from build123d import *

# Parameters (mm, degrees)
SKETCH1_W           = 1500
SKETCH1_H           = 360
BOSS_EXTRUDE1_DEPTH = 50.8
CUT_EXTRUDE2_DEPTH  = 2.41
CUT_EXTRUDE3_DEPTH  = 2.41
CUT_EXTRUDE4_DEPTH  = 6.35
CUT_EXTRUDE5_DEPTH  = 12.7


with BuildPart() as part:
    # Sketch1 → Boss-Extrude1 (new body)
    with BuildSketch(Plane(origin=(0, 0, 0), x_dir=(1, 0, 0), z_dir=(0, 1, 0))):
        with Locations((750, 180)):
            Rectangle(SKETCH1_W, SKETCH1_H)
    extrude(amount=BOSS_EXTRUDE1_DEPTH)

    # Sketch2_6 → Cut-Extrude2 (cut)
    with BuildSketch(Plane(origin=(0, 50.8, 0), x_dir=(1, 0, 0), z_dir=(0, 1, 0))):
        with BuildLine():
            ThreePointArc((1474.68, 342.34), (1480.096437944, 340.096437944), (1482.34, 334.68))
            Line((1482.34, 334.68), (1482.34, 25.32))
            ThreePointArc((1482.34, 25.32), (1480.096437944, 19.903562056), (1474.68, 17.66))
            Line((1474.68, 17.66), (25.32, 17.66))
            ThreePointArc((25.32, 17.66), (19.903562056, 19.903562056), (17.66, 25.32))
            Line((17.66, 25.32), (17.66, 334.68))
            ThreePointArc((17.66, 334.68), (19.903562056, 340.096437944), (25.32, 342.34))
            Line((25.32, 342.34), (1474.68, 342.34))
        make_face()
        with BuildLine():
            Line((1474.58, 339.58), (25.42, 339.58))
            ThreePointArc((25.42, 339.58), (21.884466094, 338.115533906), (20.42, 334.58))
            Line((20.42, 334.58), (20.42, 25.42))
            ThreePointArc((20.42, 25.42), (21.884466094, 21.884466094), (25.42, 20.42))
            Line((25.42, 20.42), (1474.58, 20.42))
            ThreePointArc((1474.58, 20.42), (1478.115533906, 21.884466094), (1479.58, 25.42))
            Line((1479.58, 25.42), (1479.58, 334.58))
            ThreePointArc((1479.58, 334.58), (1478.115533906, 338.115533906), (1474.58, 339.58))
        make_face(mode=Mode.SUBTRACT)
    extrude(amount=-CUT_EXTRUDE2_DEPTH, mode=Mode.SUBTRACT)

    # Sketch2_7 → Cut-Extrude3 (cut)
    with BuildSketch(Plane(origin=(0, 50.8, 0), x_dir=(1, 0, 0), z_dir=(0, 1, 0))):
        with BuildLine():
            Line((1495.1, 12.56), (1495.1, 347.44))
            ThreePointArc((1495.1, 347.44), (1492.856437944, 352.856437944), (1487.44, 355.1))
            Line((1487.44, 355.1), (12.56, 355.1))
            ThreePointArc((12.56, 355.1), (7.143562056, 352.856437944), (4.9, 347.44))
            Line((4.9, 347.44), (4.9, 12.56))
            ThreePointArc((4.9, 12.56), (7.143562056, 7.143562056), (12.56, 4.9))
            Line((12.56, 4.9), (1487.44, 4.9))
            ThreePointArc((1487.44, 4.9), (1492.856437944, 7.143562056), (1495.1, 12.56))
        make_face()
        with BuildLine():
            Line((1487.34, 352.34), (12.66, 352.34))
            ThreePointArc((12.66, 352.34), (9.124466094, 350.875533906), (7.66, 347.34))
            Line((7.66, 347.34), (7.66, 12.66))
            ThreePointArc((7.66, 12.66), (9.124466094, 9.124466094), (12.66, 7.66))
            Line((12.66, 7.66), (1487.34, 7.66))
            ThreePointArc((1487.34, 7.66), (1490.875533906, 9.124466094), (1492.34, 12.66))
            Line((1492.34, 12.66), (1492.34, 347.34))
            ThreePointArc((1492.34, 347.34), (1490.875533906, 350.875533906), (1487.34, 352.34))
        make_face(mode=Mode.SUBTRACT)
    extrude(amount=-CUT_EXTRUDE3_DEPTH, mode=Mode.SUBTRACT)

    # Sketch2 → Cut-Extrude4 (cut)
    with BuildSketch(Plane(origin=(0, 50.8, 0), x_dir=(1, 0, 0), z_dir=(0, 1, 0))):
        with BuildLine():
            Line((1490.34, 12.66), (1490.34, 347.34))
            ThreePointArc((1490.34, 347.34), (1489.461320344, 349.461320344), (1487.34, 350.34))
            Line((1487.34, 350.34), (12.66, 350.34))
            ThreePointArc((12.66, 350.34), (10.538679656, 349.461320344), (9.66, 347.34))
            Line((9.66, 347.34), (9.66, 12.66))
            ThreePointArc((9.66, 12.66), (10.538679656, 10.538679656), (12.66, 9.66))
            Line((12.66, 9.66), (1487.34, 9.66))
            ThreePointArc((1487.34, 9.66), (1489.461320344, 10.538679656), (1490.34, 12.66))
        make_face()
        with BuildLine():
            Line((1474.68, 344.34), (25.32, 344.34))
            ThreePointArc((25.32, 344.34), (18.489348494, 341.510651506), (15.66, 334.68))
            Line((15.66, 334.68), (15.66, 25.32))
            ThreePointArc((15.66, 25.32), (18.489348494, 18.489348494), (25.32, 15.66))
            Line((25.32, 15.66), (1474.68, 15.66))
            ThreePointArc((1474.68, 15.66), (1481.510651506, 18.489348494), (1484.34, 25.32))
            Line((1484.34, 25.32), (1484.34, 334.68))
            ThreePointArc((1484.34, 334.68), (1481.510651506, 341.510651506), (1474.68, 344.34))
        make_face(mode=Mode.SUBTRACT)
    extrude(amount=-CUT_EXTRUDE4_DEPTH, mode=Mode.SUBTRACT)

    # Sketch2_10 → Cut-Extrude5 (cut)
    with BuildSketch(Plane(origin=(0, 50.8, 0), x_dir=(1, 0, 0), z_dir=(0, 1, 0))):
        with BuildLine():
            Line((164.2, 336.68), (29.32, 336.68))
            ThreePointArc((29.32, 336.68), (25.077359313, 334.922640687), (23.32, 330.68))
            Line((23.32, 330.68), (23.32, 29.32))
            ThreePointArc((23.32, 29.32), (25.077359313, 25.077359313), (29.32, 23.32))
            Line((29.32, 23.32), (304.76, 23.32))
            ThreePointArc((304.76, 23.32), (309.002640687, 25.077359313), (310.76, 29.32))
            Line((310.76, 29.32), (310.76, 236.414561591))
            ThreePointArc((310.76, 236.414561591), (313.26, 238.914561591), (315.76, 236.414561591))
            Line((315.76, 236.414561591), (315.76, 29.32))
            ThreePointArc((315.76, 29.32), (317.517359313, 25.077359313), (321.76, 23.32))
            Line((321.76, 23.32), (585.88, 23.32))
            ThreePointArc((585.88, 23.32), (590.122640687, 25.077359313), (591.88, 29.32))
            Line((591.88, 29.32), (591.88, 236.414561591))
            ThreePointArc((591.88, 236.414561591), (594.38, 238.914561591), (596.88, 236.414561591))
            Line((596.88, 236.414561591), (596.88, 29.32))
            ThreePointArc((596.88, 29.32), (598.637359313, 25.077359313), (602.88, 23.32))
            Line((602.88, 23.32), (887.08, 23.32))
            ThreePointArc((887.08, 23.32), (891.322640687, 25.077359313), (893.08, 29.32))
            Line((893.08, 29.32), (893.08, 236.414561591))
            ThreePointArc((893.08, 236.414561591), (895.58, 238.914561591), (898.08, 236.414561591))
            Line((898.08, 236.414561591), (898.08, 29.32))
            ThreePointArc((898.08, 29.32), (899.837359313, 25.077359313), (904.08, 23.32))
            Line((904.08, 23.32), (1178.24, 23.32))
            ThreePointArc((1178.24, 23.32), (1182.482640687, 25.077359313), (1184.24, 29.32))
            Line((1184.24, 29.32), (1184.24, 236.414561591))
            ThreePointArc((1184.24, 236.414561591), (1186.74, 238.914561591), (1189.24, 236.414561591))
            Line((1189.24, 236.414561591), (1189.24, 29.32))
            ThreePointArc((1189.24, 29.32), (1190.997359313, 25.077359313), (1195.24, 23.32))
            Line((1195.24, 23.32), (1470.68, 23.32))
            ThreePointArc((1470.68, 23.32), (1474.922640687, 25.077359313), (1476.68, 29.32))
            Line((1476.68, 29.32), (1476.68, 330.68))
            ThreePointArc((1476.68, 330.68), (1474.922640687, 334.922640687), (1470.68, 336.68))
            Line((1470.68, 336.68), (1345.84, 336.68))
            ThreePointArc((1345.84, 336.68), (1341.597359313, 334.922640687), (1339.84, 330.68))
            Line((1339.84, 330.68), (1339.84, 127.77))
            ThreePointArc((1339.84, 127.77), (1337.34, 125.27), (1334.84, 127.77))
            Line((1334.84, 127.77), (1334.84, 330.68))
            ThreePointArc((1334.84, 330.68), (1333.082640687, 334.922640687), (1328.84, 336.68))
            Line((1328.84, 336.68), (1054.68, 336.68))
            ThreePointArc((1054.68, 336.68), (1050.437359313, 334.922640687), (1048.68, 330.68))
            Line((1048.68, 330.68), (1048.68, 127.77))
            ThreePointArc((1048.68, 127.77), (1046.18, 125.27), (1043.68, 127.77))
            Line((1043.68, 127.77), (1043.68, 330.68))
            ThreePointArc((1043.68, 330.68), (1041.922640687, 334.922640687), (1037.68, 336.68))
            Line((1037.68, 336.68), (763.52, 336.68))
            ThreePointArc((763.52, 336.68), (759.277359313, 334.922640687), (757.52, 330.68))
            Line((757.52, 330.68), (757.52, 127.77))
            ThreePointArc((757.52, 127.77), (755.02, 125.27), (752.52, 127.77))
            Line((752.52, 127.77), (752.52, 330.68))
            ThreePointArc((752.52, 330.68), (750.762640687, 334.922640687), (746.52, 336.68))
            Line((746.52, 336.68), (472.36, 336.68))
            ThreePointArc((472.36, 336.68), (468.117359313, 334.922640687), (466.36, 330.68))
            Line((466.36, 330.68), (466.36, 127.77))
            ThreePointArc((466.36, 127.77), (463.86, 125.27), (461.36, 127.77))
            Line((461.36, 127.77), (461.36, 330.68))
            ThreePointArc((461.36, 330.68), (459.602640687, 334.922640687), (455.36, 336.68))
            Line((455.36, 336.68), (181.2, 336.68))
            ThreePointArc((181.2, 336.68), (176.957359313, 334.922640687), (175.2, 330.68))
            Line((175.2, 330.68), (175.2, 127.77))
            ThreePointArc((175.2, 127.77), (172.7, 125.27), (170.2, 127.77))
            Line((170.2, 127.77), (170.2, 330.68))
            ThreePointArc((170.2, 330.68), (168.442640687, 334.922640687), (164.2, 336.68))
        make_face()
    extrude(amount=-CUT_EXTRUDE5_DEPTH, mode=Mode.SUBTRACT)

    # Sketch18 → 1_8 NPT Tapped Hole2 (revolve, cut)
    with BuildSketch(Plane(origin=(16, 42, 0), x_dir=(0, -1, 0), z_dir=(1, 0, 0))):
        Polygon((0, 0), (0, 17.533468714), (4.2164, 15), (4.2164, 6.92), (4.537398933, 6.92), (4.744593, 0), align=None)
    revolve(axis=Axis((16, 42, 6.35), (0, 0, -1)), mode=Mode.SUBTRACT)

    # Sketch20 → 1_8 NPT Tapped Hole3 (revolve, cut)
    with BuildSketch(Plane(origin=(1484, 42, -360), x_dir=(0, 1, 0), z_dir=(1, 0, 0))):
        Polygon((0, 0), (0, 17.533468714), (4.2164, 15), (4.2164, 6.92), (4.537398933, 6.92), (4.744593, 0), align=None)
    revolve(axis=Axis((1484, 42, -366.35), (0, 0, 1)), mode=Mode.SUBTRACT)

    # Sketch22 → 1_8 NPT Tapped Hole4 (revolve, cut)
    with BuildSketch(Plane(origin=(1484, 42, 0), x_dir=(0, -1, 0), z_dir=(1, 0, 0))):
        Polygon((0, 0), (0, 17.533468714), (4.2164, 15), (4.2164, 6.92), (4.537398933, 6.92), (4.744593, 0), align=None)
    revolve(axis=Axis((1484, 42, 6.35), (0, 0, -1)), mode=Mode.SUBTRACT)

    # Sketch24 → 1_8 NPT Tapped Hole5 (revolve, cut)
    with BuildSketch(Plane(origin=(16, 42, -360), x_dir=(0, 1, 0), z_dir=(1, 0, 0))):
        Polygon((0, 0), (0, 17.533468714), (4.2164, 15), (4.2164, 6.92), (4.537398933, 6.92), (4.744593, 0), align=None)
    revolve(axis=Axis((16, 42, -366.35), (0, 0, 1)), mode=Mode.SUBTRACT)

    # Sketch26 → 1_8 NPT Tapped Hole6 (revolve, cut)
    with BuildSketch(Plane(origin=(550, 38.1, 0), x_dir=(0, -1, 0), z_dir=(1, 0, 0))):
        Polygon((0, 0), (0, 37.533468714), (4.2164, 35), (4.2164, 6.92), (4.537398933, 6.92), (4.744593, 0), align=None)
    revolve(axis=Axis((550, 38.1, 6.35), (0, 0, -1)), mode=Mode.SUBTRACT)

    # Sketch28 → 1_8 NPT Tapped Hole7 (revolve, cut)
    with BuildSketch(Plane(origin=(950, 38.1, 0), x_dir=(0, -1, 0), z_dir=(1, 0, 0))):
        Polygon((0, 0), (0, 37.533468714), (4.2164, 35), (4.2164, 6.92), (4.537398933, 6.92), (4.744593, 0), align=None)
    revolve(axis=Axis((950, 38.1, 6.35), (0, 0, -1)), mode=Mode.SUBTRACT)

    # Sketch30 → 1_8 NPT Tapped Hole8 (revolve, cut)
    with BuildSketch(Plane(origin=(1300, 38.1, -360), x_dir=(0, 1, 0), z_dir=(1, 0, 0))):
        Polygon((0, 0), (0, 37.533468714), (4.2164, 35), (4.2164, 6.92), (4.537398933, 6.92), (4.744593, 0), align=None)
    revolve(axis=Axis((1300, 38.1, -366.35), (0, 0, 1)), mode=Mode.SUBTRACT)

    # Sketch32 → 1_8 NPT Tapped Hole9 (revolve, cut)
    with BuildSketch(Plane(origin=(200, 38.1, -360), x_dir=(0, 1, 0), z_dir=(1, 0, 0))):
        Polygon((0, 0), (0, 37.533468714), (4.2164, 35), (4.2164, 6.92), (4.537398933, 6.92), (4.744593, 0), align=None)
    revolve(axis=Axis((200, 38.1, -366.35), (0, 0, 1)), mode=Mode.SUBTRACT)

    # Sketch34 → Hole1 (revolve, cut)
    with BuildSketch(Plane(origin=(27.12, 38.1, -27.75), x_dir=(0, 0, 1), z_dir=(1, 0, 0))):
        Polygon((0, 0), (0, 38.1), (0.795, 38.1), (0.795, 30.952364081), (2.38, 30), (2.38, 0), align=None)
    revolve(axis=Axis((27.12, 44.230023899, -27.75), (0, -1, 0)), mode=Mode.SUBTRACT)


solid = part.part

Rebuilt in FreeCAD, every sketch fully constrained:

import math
import FreeCAD as App
import Part
import Sketcher
Q = App.Units.Quantity


def add_polygon(sketch, points):
    """Adds a closed chain of lines whose ends are joined by coincident constraints."""
    first, n = sketch.GeometryCount, len(points)
    for a, b in zip(points, points[1:] + points[:1]):
        sketch.addGeometry(Part.LineSegment(App.Vector(*a, 0), App.Vector(*b, 0)), False)
    for i in range(n):
        sketch.addConstraint(Sketcher.Constraint("Coincident", first + i, 2, first + (i + 1) % n, 1))

doc = App.newDocument("Part")
body = doc.addObject("PartDesign::Body", "Body")

# Sketch on XZ plane
sketch1 = body.newObject("Sketcher::SketchObject", "Sketch")
sketch1.AttachmentSupport = (doc.getObject("XZ_Plane"), [""])
sketch1.MapMode = "FlatFace"
add_polygon(sketch1, [(0, -360), (0, 0), (1500, 0), (1500, -360)])  # lines 0-3
sketch1.addConstraint([
    Sketcher.Constraint("Vertical", 0),
    Sketcher.Constraint("Horizontal", 1),
    Sketcher.Constraint("Vertical", 2),
    Sketcher.Constraint("Horizontal", 3),
    Sketcher.Constraint("Coincident", 0, 2, -1, 1),
    Sketcher.Constraint("DistanceX", 1, 1, 1, 2, Q("1500 mm")),
    Sketcher.Constraint("DistanceY", 0, 1, 0, 2, Q("360 mm")),
])
pad1 = body.newObject("PartDesign::Pad", "Pad")
pad1.Profile = sketch1
pad1.Length = 50.8
pad1.Reversed = True

# Sketch on XZ plane
sketch2 = body.newObject("Sketcher::SketchObject", "Sketch001")
sketch2.AttachmentSupport = (doc.getObject("XZ_Plane"), [""])
sketch2.MapMode = "FlatFace"
sketch2.AttachmentOffset = App.Placement(App.Vector(0, 0, -50.8), App.Rotation())
sketch2.addGeometry([
    Part.ArcOfCircle(Part.Circle(App.Vector(1475, -335, 0), App.Vector(0, 0, 1), 8), math.radians(-90), math.radians(0)),  # 0
    Part.LineSegment(App.Vector(1475, -342, 0), App.Vector(25, -342, 0)),  # 1
    Part.ArcOfCircle(Part.Circle(App.Vector(25, -335, 0), App.Vector(0, 0, 1), 8), math.radians(180), math.radians(270)),  # 2
    Part.LineSegment(App.Vector(18, -335, 0), App.Vector(18, -25, 0)),  # 3
    Part.ArcOfCircle(Part.Circle(App.Vector(25, -25, 0), App.Vector(0, 0, 1), 8), math.radians(90), math.radians(180)),  # 4
    Part.LineSegment(App.Vector(25, -18, 0), App.Vector(1475, -18, 0)),  # 5
    Part.ArcOfCircle(Part.Circle(App.Vector(1475, -25, 0), App.Vector(0, 0, 1), 8), math.radians(0), math.radians(90)),  # 6
    Part.LineSegment(App.Vector(1482, -25, 0), App.Vector(1482, -335, 0)),  # 7
    Part.ArcOfCircle(Part.Circle(App.Vector(1475, -335, 0), App.Vector(0, 0, 1), 5), math.radians(-90), math.radians(0)),  # 8
    Part.LineSegment(App.Vector(1480, -335, 0), App.Vector(1480, -25, 0)),  # 9
    Part.ArcOfCircle(Part.Circle(App.Vector(1475, -25, 0), App.Vector(0, 0, 1), 5), math.radians(0), math.radians(90)),  # 10
    Part.LineSegment(App.Vector(1475, -20, 0), App.Vector(25, -20, 0)),  # 11
    Part.ArcOfCircle(Part.Circle(App.Vector(25, -25, 0), App.Vector(0, 0, 1), 5), math.radians(90), math.radians(180)),  # 12
    Part.LineSegment(App.Vector(20, -25, 0), App.Vector(20, -335, 0)),  # 13
    Part.ArcOfCircle(Part.Circle(App.Vector(25, -335, 0), App.Vector(0, 0, 1), 5), math.radians(180), math.radians(270)),  # 14
    Part.LineSegment(App.Vector(25, -340, 0), App.Vector(1475, -340, 0)),  # 15
], False)
sketch2.addConstraint([
    Sketcher.Constraint("Tangent", 0, 1, 1, 1),
    Sketcher.Constraint("Tangent", 1, 2, 2, 2),
    Sketcher.Constraint("Tangent", 2, 1, 3, 1),
    Sketcher.Constraint("Tangent", 3, 2, 4, 2),
    Sketcher.Constraint("Tangent", 4, 1, 5, 1),
    Sketcher.Constraint("Tangent", 5, 2, 6, 2),
    Sketcher.Constraint("Tangent", 6, 1, 7, 1),
    Sketcher.Constraint("Tangent", 7, 2, 0, 2),
    Sketcher.Constraint("Tangent", 8, 2, 9, 1),
    Sketcher.Constraint("Tangent", 9, 2, 10, 1),
    Sketcher.Constraint("Tangent", 10, 2, 11, 1),
    Sketcher.Constraint("Tangent", 11, 2, 12, 1),
    Sketcher.Constraint("Tangent", 12, 2, 13, 1),
    Sketcher.Constraint("Tangent", 13, 2, 14, 1),
    Sketcher.Constraint("Tangent", 14, 2, 15, 1),
    Sketcher.Constraint("Tangent", 15, 2, 8, 1),
    Sketcher.Constraint("Horizontal", 1),
    Sketcher.Constraint("Vertical", 3),
    Sketcher.Constraint("Horizontal", 5),
    Sketcher.Constraint("Vertical", 7),
    Sketcher.Constraint("Vertical", 9),
    Sketcher.Constraint("Horizontal", 11),
    Sketcher.Constraint("Vertical", 13),
    Sketcher.Constraint("Horizontal", 15),
    Sketcher.Constraint("Equal", 0, 2),
    Sketcher.Constraint("Equal", 2, 4),
    Sketcher.Constraint("Equal", 4, 6),
    Sketcher.Constraint("Equal", 8, 10),
    Sketcher.Constraint("Equal", 10, 12),
    Sketcher.Constraint("Equal", 12, 14),
    Sketcher.Constraint("Radius", 8, Q("5 mm")),
    Sketcher.Constraint("Radius", 0, Q("7.66 mm")),
    Sketcher.Constraint("DistanceX", 1, 2, 1, 1, Q("1449.36 mm")),
    Sketcher.Constraint("DistanceX", 11, 2, 11, 1, Q("1449.16 mm")),
    Sketcher.Constraint("DistanceY", 3, 1, 3, 2, Q("309.36 mm")),
    Sketcher.Constraint("DistanceY", 9, 1, 9, 2, Q("309.16 mm")),
    Sketcher.Constraint("DistanceX", 8, 3, 0, 3, Q("0.1 mm")),
    Sketcher.Constraint("DistanceY", 0, 3, 8, 3, Q("0.1 mm")),
    Sketcher.Constraint("DistanceX", -1, 1, 0, 3, Q("1474.68 mm")),
    Sketcher.Constraint("DistanceY", 0, 3, -1, 1, Q("334.68 mm")),
])
pocket1 = body.newObject("PartDesign::Pocket", "Pocket")
pocket1.Profile = sketch2
pocket1.Length = 2.41
pocket1.Reversed = True

# Sketch on XZ plane
sketch3 = body.newObject("Sketcher::SketchObject", "Sketch002")
sketch3.AttachmentSupport = (doc.getObject("XZ_Plane"), [""])
sketch3.MapMode = "FlatFace"
sketch3.AttachmentOffset = App.Placement(App.Vector(0, 0, -50.8), App.Rotation())
sketch3.addGeometry([
    Part.LineSegment(App.Vector(1495, -13, 0), App.Vector(1495, -347, 0)),  # 0
    Part.ArcOfCircle(Part.Circle(App.Vector(1487, -347, 0), App.Vector(0, 0, 1), 8), math.radians(-90), math.radians(0)),  # 1
    Part.LineSegment(App.Vector(1487, -355, 0), App.Vector(13, -355, 0)),  # 2
    Part.ArcOfCircle(Part.Circle(App.Vector(13, -347, 0), App.Vector(0, 0, 1), 8), math.radians(180), math.radians(270)),  # 3
    Part.LineSegment(App.Vector(5, -347, 0), App.Vector(5, -13, 0)),  # 4
    Part.ArcOfCircle(Part.Circle(App.Vector(13, -13, 0), App.Vector(0, 0, 1), 8), math.radians(90), math.radians(180)),  # 5
    Part.LineSegment(App.Vector(13, -5, 0), App.Vector(1487, -5, 0)),  # 6
    Part.ArcOfCircle(Part.Circle(App.Vector(1487, -13, 0), App.Vector(0, 0, 1), 8), math.radians(0), math.radians(90)),  # 7
    Part.LineSegment(App.Vector(13, -352, 0), App.Vector(1487, -352, 0)),  # 8
    Part.ArcOfCircle(Part.Circle(App.Vector(1487, -347, 0), App.Vector(0, 0, 1), 5), math.radians(-90), math.radians(0)),  # 9
    Part.LineSegment(App.Vector(1492, -347, 0), App.Vector(1492, -13, 0)),  # 10
    Part.ArcOfCircle(Part.Circle(App.Vector(1487, -13, 0), App.Vector(0, 0, 1), 5), math.radians(0), math.radians(90)),  # 11
    Part.LineSegment(App.Vector(1487, -8, 0), App.Vector(13, -8, 0)),  # 12
    Part.ArcOfCircle(Part.Circle(App.Vector(13, -13, 0), App.Vector(0, 0, 1), 5), math.radians(90), math.radians(180)),  # 13
    Part.LineSegment(App.Vector(8, -13, 0), App.Vector(8, -347, 0)),  # 14
    Part.ArcOfCircle(Part.Circle(App.Vector(13, -347, 0), App.Vector(0, 0, 1), 5), math.radians(180), math.radians(270)),  # 15
], False)
sketch3.addConstraint([
    Sketcher.Constraint("Tangent", 0, 2, 1, 2),
    Sketcher.Constraint("Tangent", 1, 1, 2, 1),
    Sketcher.Constraint("Tangent", 2, 2, 3, 2),
    Sketcher.Constraint("Tangent", 3, 1, 4, 1),
    Sketcher.Constraint("Tangent", 4, 2, 5, 2),
    Sketcher.Constraint("Tangent", 5, 1, 6, 1),
    Sketcher.Constraint("Tangent", 6, 2, 7, 2),
    Sketcher.Constraint("Tangent", 7, 1, 0, 1),
    Sketcher.Constraint("Tangent", 8, 2, 9, 1),
    Sketcher.Constraint("Tangent", 9, 2, 10, 1),
    Sketcher.Constraint("Tangent", 10, 2, 11, 1),
    Sketcher.Constraint("Tangent", 11, 2, 12, 1),
    Sketcher.Constraint("Tangent", 12, 2, 13, 1),
    Sketcher.Constraint("Tangent", 13, 2, 14, 1),
    Sketcher.Constraint("Tangent", 14, 2, 15, 1),
    Sketcher.Constraint("Tangent", 15, 2, 8, 1),
    Sketcher.Constraint("Vertical", 0),
    Sketcher.Constraint("Horizontal", 2),
    Sketcher.Constraint("Vertical", 4),
    Sketcher.Constraint("Horizontal", 6),
    Sketcher.Constraint("Horizontal", 8),
    Sketcher.Constraint("Vertical", 10),
    Sketcher.Constraint("Horizontal", 12),
    Sketcher.Constraint("Vertical", 14),
    Sketcher.Constraint("Equal", 1, 3),
    Sketcher.Constraint("Equal", 3, 5),
    Sketcher.Constraint("Equal", 5, 7),
    Sketcher.Constraint("Equal", 9, 11),
    Sketcher.Constraint("Equal", 11, 13),
    Sketcher.Constraint("Equal", 13, 15),
    Sketcher.Constraint("Radius", 9, Q("5 mm")),
    Sketcher.Constraint("Radius", 1, Q("7.66 mm")),
    Sketcher.Constraint("DistanceX", 2, 2, 2, 1, Q("1474.88 mm")),
    Sketcher.Constraint("DistanceX", 8, 1, 8, 2, Q("1474.68 mm")),
    Sketcher.Constraint("DistanceY", 0, 2, 0, 1, Q("334.88 mm")),
    Sketcher.Constraint("DistanceY", 10, 1, 10, 2, Q("334.68 mm")),
    Sketcher.Constraint("DistanceX", -1, 1, 0, 2, Q("1495.1 mm")),
    Sketcher.Constraint("DistanceY", 1, 1, -1, 1, Q("355.1 mm")),
    Sketcher.Constraint("DistanceX", 9, 3, 1, 3, Q("0.1 mm")),
    Sketcher.Constraint("DistanceY", 1, 3, 9, 3, Q("0.1 mm")),
])
pocket2 = body.newObject("PartDesign::Pocket", "Pocket001")
pocket2.Profile = sketch3
pocket2.Length = 2.41
pocket2.Reversed = True

# Sketch on XZ plane
sketch4 = body.newObject("Sketcher::SketchObject", "Sketch003")
sketch4.AttachmentSupport = (doc.getObject("XZ_Plane"), [""])
sketch4.MapMode = "FlatFace"
sketch4.AttachmentOffset = App.Placement(App.Vector(0, 0, -50.8), App.Rotation())
sketch4.addGeometry([
    Part.LineSegment(App.Vector(1490.3, -12.7, 0), App.Vector(1490.3, -347.3, 0)),  # 0
    Part.ArcOfCircle(Part.Circle(App.Vector(1487.3, -347.3, 0), App.Vector(0, 0, 1), 3), math.radians(-90), math.radians(0)),  # 1
    Part.LineSegment(App.Vector(1487.3, -350.3, 0), App.Vector(12.7, -350.3, 0)),  # 2
    Part.ArcOfCircle(Part.Circle(App.Vector(12.7, -347.3, 0), App.Vector(0, 0, 1), 3), math.radians(180), math.radians(270)),  # 3
    Part.LineSegment(App.Vector(9.7, -347.3, 0), App.Vector(9.7, -12.7, 0)),  # 4
    Part.ArcOfCircle(Part.Circle(App.Vector(12.7, -12.7, 0), App.Vector(0, 0, 1), 3), math.radians(90), math.radians(180)),  # 5
    Part.LineSegment(App.Vector(12.7, -9.7, 0), App.Vector(1487.3, -9.7, 0)),  # 6
    Part.ArcOfCircle(Part.Circle(App.Vector(1487.3, -12.7, 0), App.Vector(0, 0, 1), 3), math.radians(0), math.radians(90)),  # 7
    Part.LineSegment(App.Vector(25.3, -344.3, 0), App.Vector(1474.7, -344.3, 0)),  # 8
    Part.ArcOfCircle(Part.Circle(App.Vector(1474.7, -334.7, 0), App.Vector(0, 0, 1), 9.7), math.radians(-90), math.radians(0)),  # 9
    Part.LineSegment(App.Vector(1484.3, -334.7, 0), App.Vector(1484.3, -25.3, 0)),  # 10
    Part.ArcOfCircle(Part.Circle(App.Vector(1474.7, -25.3, 0), App.Vector(0, 0, 1), 9.7), math.radians(0), math.radians(90)),  # 11
    Part.LineSegment(App.Vector(1474.7, -15.7, 0), App.Vector(25.3, -15.7, 0)),  # 12
    Part.ArcOfCircle(Part.Circle(App.Vector(25.3, -25.3, 0), App.Vector(0, 0, 1), 9.7), math.radians(90), math.radians(180)),  # 13
    Part.LineSegment(App.Vector(15.7, -25.3, 0), App.Vector(15.7, -334.7, 0)),  # 14
    Part.ArcOfCircle(Part.Circle(App.Vector(25.3, -334.7, 0), App.Vector(0, 0, 1), 9.7), math.radians(-180), math.radians(-90)),  # 15
], False)
sketch4.addConstraint([
    Sketcher.Constraint("Tangent", 0, 2, 1, 2),
    Sketcher.Constraint("Tangent", 1, 1, 2, 1),
    Sketcher.Constraint("Tangent", 2, 2, 3, 2),
    Sketcher.Constraint("Tangent", 3, 1, 4, 1),
    Sketcher.Constraint("Tangent", 4, 2, 5, 2),
    Sketcher.Constraint("Tangent", 5, 1, 6, 1),
    Sketcher.Constraint("Tangent", 6, 2, 7, 2),
    Sketcher.Constraint("Tangent", 7, 1, 0, 1),
    Sketcher.Constraint("Tangent", 8, 2, 9, 1),
    Sketcher.Constraint("Tangent", 9, 2, 10, 1),
    Sketcher.Constraint("Tangent", 10, 2, 11, 1),
    Sketcher.Constraint("Tangent", 11, 2, 12, 1),
    Sketcher.Constraint("Tangent", 12, 2, 13, 1),
    Sketcher.Constraint("Tangent", 13, 2, 14, 1),
    Sketcher.Constraint("Tangent", 14, 2, 15, 1),
    Sketcher.Constraint("Tangent", 15, 2, 8, 1),
    Sketcher.Constraint("Vertical", 0),
    Sketcher.Constraint("Horizontal", 2),
    Sketcher.Constraint("Vertical", 4),
    Sketcher.Constraint("Horizontal", 6),
    Sketcher.Constraint("Horizontal", 8),
    Sketcher.Constraint("Vertical", 10),
    Sketcher.Constraint("Horizontal", 12),
    Sketcher.Constraint("Vertical", 14),
    Sketcher.Constraint("Equal", 1, 3),
    Sketcher.Constraint("Equal", 3, 5),
    Sketcher.Constraint("Equal", 5, 7),
    Sketcher.Constraint("Equal", 9, 11),
    Sketcher.Constraint("Equal", 11, 13),
    Sketcher.Constraint("Equal", 13, 15),
    Sketcher.Constraint("Radius", 1, Q("3 mm")),
    Sketcher.Constraint("Radius", 9, Q("9.66 mm")),
    Sketcher.Constraint("DistanceY", 1, 3, 8, 2, Q("3 mm")),
    Sketcher.Constraint("DistanceX", 9, 2, 1, 3, Q("3 mm")),
    Sketcher.Constraint("DistanceY", 11, 2, 7, 3, Q("3 mm")),
    Sketcher.Constraint("DistanceX", 5, 3, 13, 2, Q("3 mm")),
    Sketcher.Constraint("DistanceX", 2, 2, 2, 1, Q("1474.68 mm")),
    Sketcher.Constraint("DistanceY", 0, 2, 0, 1, Q("334.68 mm")),
    Sketcher.Constraint("DistanceX", -1, 1, 1, 3, Q("1487.34 mm")),
    Sketcher.Constraint("DistanceY", 1, 3, -1, 1, Q("347.34 mm")),
])
pocket3 = body.newObject("PartDesign::Pocket", "Pocket002")
pocket3.Profile = sketch4
pocket3.Length = 6.35
pocket3.Reversed = True

# Sketch on XZ plane
sketch5 = body.newObject("Sketcher::SketchObject", "Sketch004")
sketch5.AttachmentSupport = (doc.getObject("XZ_Plane"), [""])
sketch5.MapMode = "FlatFace"
sketch5.AttachmentOffset = App.Placement(App.Vector(0, 0, -50.8), App.Rotation())
sketch5.addGeometry([
    Part.LineSegment(App.Vector(164.2, -336.7, 0), App.Vector(29.3, -336.7, 0)),  # 0
    Part.ArcOfCircle(Part.Circle(App.Vector(29.3, -330.7, 0), App.Vector(0, 0, 1), 6), math.radians(180), math.radians(270)),  # 1
    Part.LineSegment(App.Vector(23.3, -330.7, 0), App.Vector(23.3, -29.3, 0)),  # 2
    Part.ArcOfCircle(Part.Circle(App.Vector(29.3, -29.3, 0), App.Vector(0, 0, 1), 6), math.radians(90), math.radians(180)),  # 3
    Part.LineSegment(App.Vector(29.3, -23.3, 0), App.Vector(304.8, -23.3, 0)),  # 4
    Part.ArcOfCircle(Part.Circle(App.Vector(304.8, -29.3, 0), App.Vector(0, 0, 1), 6), math.radians(0), math.radians(90)),  # 5
    Part.LineSegment(App.Vector(310.8, -29.3, 0), App.Vector(310.8, -236.4, 0)),  # 6
    Part.ArcOfCircle(Part.Circle(App.Vector(313.3, -236.4, 0), App.Vector(0, 0, 1), 2.5), math.radians(180), math.radians(360)),  # 7
    Part.LineSegment(App.Vector(315.8, -236.4, 0), App.Vector(315.8, -29.3, 0)),  # 8
    Part.ArcOfCircle(Part.Circle(App.Vector(321.8, -29.3, 0), App.Vector(0, 0, 1), 6), math.radians(90), math.radians(180)),  # 9
    Part.LineSegment(App.Vector(321.8, -23.3, 0), App.Vector(585.9, -23.3, 0)),  # 10
    Part.ArcOfCircle(Part.Circle(App.Vector(585.9, -29.3, 0), App.Vector(0, 0, 1), 6), math.radians(0), math.radians(90)),  # 11
    Part.LineSegment(App.Vector(591.9, -29.3, 0), App.Vector(591.9, -236.4, 0)),  # 12
    Part.ArcOfCircle(Part.Circle(App.Vector(594.4, -236.4, 0), App.Vector(0, 0, 1), 2.5), math.radians(180), math.radians(360)),  # 13
    Part.LineSegment(App.Vector(596.9, -236.4, 0), App.Vector(596.9, -29.3, 0)),  # 14
    Part.ArcOfCircle(Part.Circle(App.Vector(602.9, -29.3, 0), App.Vector(0, 0, 1), 6), math.radians(90), math.radians(180)),  # 15
    Part.LineSegment(App.Vector(602.9, -23.3, 0), App.Vector(887.1, -23.3, 0)),  # 16
    Part.ArcOfCircle(Part.Circle(App.Vector(887.1, -29.3, 0), App.Vector(0, 0, 1), 6), math.radians(0), math.radians(90)),  # 17
    Part.LineSegment(App.Vector(893.1, -29.3, 0), App.Vector(893.1, -236.4, 0)),  # 18
    Part.ArcOfCircle(Part.Circle(App.Vector(895.6, -236.4, 0), App.Vector(0, 0, 1), 2.5), math.radians(180), math.radians(360)),  # 19
    Part.LineSegment(App.Vector(898.1, -236.4, 0), App.Vector(898.1, -29.3, 0)),  # 20
    Part.ArcOfCircle(Part.Circle(App.Vector(904.1, -29.3, 0), App.Vector(0, 0, 1), 6), math.radians(90), math.radians(180)),  # 21
    Part.LineSegment(App.Vector(904.1, -23.3, 0), App.Vector(1178.2, -23.3, 0)),  # 22
    Part.ArcOfCircle(Part.Circle(App.Vector(1178.2, -29.3, 0), App.Vector(0, 0, 1), 6), math.radians(0), math.radians(90)),  # 23
    Part.LineSegment(App.Vector(1184.2, -29.3, 0), App.Vector(1184.2, -236.4, 0)),  # 24
    Part.ArcOfCircle(Part.Circle(App.Vector(1186.7, -236.4, 0), App.Vector(0, 0, 1), 2.5), math.radians(180), math.radians(360)),  # 25
    Part.LineSegment(App.Vector(1189.2, -236.4, 0), App.Vector(1189.2, -29.3, 0)),  # 26
    Part.ArcOfCircle(Part.Circle(App.Vector(1195.2, -29.3, 0), App.Vector(0, 0, 1), 6), math.radians(90), math.radians(180)),  # 27
    Part.LineSegment(App.Vector(1195.2, -23.3, 0), App.Vector(1470.7, -23.3, 0)),  # 28
    Part.ArcOfCircle(Part.Circle(App.Vector(1470.7, -29.3, 0), App.Vector(0, 0, 1), 6), math.radians(0), math.radians(90)),  # 29
    Part.LineSegment(App.Vector(1476.7, -29.3, 0), App.Vector(1476.7, -330.7, 0)),  # 30
    Part.ArcOfCircle(Part.Circle(App.Vector(1470.7, -330.7, 0), App.Vector(0, 0, 1), 6), math.radians(-90), math.radians(0)),  # 31
    Part.LineSegment(App.Vector(1470.7, -336.7, 0), App.Vector(1345.8, -336.7, 0)),  # 32
    Part.ArcOfCircle(Part.Circle(App.Vector(1345.8, -330.7, 0), App.Vector(0, 0, 1), 6), math.radians(180), math.radians(270)),  # 33
    Part.LineSegment(App.Vector(1339.8, -330.7, 0), App.Vector(1339.8, -127.8, 0)),  # 34
    Part.ArcOfCircle(Part.Circle(App.Vector(1337.3, -127.8, 0), App.Vector(0, 0, 1), 2.5), math.radians(0), math.radians(180)),  # 35
    Part.LineSegment(App.Vector(1334.8, -127.8, 0), App.Vector(1334.8, -330.7, 0)),  # 36
    Part.ArcOfCircle(Part.Circle(App.Vector(1328.8, -330.7, 0), App.Vector(0, 0, 1), 6), math.radians(-90), math.radians(0)),  # 37
    Part.LineSegment(App.Vector(1328.8, -336.7, 0), App.Vector(1054.7, -336.7, 0)),  # 38
    Part.ArcOfCircle(Part.Circle(App.Vector(1054.7, -330.7, 0), App.Vector(0, 0, 1), 6), math.radians(180), math.radians(270)),  # 39
    Part.LineSegment(App.Vector(1048.7, -330.7, 0), App.Vector(1048.7, -127.8, 0)),  # 40
    Part.ArcOfCircle(Part.Circle(App.Vector(1046.2, -127.8, 0), App.Vector(0, 0, 1), 2.5), math.radians(0), math.radians(180)),  # 41
    Part.LineSegment(App.Vector(1043.7, -127.8, 0), App.Vector(1043.7, -330.7, 0)),  # 42
    Part.ArcOfCircle(Part.Circle(App.Vector(1037.7, -330.7, 0), App.Vector(0, 0, 1), 6), math.radians(-90), math.radians(0)),  # 43
    Part.LineSegment(App.Vector(1037.7, -336.7, 0), App.Vector(763.5, -336.7, 0)),  # 44
    Part.ArcOfCircle(Part.Circle(App.Vector(763.5, -330.7, 0), App.Vector(0, 0, 1), 6), math.radians(180), math.radians(270)),  # 45
    Part.LineSegment(App.Vector(757.5, -330.7, 0), App.Vector(757.5, -127.8, 0)),  # 46
    Part.ArcOfCircle(Part.Circle(App.Vector(755, -127.8, 0), App.Vector(0, 0, 1), 2.5), math.radians(0), math.radians(180)),  # 47
    Part.LineSegment(App.Vector(752.5, -127.8, 0), App.Vector(752.5, -330.7, 0)),  # 48
    Part.ArcOfCircle(Part.Circle(App.Vector(746.5, -330.7, 0), App.Vector(0, 0, 1), 6), math.radians(-90), math.radians(0)),  # 49
    Part.LineSegment(App.Vector(746.5, -336.7, 0), App.Vector(472.4, -336.7, 0)),  # 50
    Part.ArcOfCircle(Part.Circle(App.Vector(472.4, -330.7, 0), App.Vector(0, 0, 1), 6), math.radians(180), math.radians(270)),  # 51
    Part.LineSegment(App.Vector(466.4, -330.7, 0), App.Vector(466.4, -127.8, 0)),  # 52
    Part.ArcOfCircle(Part.Circle(App.Vector(463.9, -127.8, 0), App.Vector(0, 0, 1), 2.5), math.radians(0), math.radians(180)),  # 53
    Part.LineSegment(App.Vector(461.4, -127.8, 0), App.Vector(461.4, -330.7, 0)),  # 54
    Part.ArcOfCircle(Part.Circle(App.Vector(455.4, -330.7, 0), App.Vector(0, 0, 1), 6), math.radians(-90), math.radians(0)),  # 55
    Part.LineSegment(App.Vector(455.4, -336.7, 0), App.Vector(181.2, -336.7, 0)),  # 56
    Part.ArcOfCircle(Part.Circle(App.Vector(181.2, -330.7, 0), App.Vector(0, 0, 1), 6), math.radians(180), math.radians(270)),  # 57
    Part.LineSegment(App.Vector(175.2, -330.7, 0), App.Vector(175.2, -127.8, 0)),  # 58
    Part.ArcOfCircle(Part.Circle(App.Vector(172.7, -127.8, 0), App.Vector(0, 0, 1), 2.5), math.radians(0), math.radians(180)),  # 59
    Part.LineSegment(App.Vector(170.2, -127.8, 0), App.Vector(170.2, -330.7, 0)),  # 60
    Part.ArcOfCircle(Part.Circle(App.Vector(164.2, -330.7, 0), App.Vector(0, 0, 1), 6), math.radians(-90), math.radians(0)),  # 61
], False)
sketch5.addConstraint([
    Sketcher.Constraint("Tangent", 0, 2, 1, 2),
    Sketcher.Constraint("Tangent", 1, 1, 2, 1),
    Sketcher.Constraint("Tangent", 2, 2, 3, 2),
    Sketcher.Constraint("Tangent", 3, 1, 4, 1),
    Sketcher.Constraint("Tangent", 4, 2, 5, 2),
    Sketcher.Constraint("Tangent", 5, 1, 6, 1),
    Sketcher.Constraint("Tangent", 6, 2, 7, 1),
    Sketcher.Constraint("Tangent", 7, 2, 8, 1),
    Sketcher.Constraint("Tangent", 8, 2, 9, 2),
    Sketcher.Constraint("Tangent", 9, 1, 10, 1),
    Sketcher.Constraint("Tangent", 10, 2, 11, 2),
    Sketcher.Constraint("Tangent", 11, 1, 12, 1),
    Sketcher.Constraint("Tangent", 12, 2, 13, 1),
    Sketcher.Constraint("Tangent", 13, 2, 14, 1),
    Sketcher.Constraint("Tangent", 14, 2, 15, 2),
    Sketcher.Constraint("Tangent", 15, 1, 16, 1),
    Sketcher.Constraint("Tangent", 16, 2, 17, 2),
    Sketcher.Constraint("Tangent", 17, 1, 18, 1),
    Sketcher.Constraint("Tangent", 18, 2, 19, 1),
    Sketcher.Constraint("Tangent", 19, 2, 20, 1),
    Sketcher.Constraint("Tangent", 20, 2, 21, 2),
    Sketcher.Constraint("Tangent", 21, 1, 22, 1),
    Sketcher.Constraint("Tangent", 22, 2, 23, 2),
    Sketcher.Constraint("Tangent", 23, 1, 24, 1),
    Sketcher.Constraint("Tangent", 24, 2, 25, 1),
    Sketcher.Constraint("Tangent", 25, 2, 26, 1),
    Sketcher.Constraint("Tangent", 26, 2, 27, 2),
    Sketcher.Constraint("Tangent", 27, 1, 28, 1),
    Sketcher.Constraint("Tangent", 28, 2, 29, 2),
    Sketcher.Constraint("Tangent", 29, 1, 30, 1),
    Sketcher.Constraint("Tangent", 30, 2, 31, 2),
    Sketcher.Constraint("Tangent", 31, 1, 32, 1),
    Sketcher.Constraint("Tangent", 32, 2, 33, 2),
    Sketcher.Constraint("Tangent", 33, 1, 34, 1),
    Sketcher.Constraint("Tangent", 34, 2, 35, 1),
    Sketcher.Constraint("Tangent", 35, 2, 36, 1),
    Sketcher.Constraint("Tangent", 36, 2, 37, 2),
    Sketcher.Constraint("Tangent", 37, 1, 38, 1),
    Sketcher.Constraint("Tangent", 38, 2, 39, 2),
    Sketcher.Constraint("Tangent", 39, 1, 40, 1),
    Sketcher.Constraint("Tangent", 40, 2, 41, 1),
    Sketcher.Constraint("Tangent", 41, 2, 42, 1),
    Sketcher.Constraint("Tangent", 42, 2, 43, 2),
    Sketcher.Constraint("Tangent", 43, 1, 44, 1),
    Sketcher.Constraint("Tangent", 44, 2, 45, 2),
    Sketcher.Constraint("Tangent", 45, 1, 46, 1),
    Sketcher.Constraint("Tangent", 46, 2, 47, 1),
    Sketcher.Constraint("Tangent", 47, 2, 48, 1),
    Sketcher.Constraint("Tangent", 48, 2, 49, 2),
    Sketcher.Constraint("Tangent", 49, 1, 50, 1),
    Sketcher.Constraint("Tangent", 50, 2, 51, 2),
    Sketcher.Constraint("Tangent", 51, 1, 52, 1),
    Sketcher.Constraint("Tangent", 52, 2, 53, 1),
    Sketcher.Constraint("Tangent", 53, 2, 54, 1),
    Sketcher.Constraint("Tangent", 54, 2, 55, 2),
    Sketcher.Constraint("Tangent", 55, 1, 56, 1),
    Sketcher.Constraint("Tangent", 56, 2, 57, 2),
    Sketcher.Constraint("Tangent", 57, 1, 58, 1),
    Sketcher.Constraint("Tangent", 58, 2, 59, 1),
    Sketcher.Constraint("Tangent", 59, 2, 60, 1),
    Sketcher.Constraint("Tangent", 60, 2, 61, 2),
    Sketcher.Constraint("Tangent", 61, 1, 0, 1),
    Sketcher.Constraint("Horizontal", 0),
    Sketcher.Constraint("Vertical", 2),
    Sketcher.Constraint("Horizontal", 4),
    Sketcher.Constraint("Vertical", 6),
    Sketcher.Constraint("Vertical", 8),
    Sketcher.Constraint("Horizontal", 10),
    Sketcher.Constraint("Vertical", 12),
    Sketcher.Constraint("Vertical", 14),
    Sketcher.Constraint("Horizontal", 16),
    Sketcher.Constraint("Vertical", 18),
    Sketcher.Constraint("Vertical", 20),
    Sketcher.Constraint("Horizontal", 22),
    Sketcher.Constraint("Vertical", 24),
    Sketcher.Constraint("Vertical", 26),
    Sketcher.Constraint("Horizontal", 28),
    Sketcher.Constraint("Vertical", 30),
    Sketcher.Constraint("Horizontal", 32),
    Sketcher.Constraint("Vertical", 34),
    Sketcher.Constraint("Vertical", 36),
    Sketcher.Constraint("Horizontal", 38),
    Sketcher.Constraint("Vertical", 40),
    Sketcher.Constraint("Vertical", 42),
    Sketcher.Constraint("Horizontal", 44),
    Sketcher.Constraint("Vertical", 46),
    Sketcher.Constraint("Vertical", 48),
    Sketcher.Constraint("Horizontal", 50),
    Sketcher.Constraint("Vertical", 52),
    Sketcher.Constraint("Vertical", 54),
    Sketcher.Constraint("Horizontal", 56),
    Sketcher.Constraint("Vertical", 58),
    Sketcher.Constraint("Vertical", 60),
    Sketcher.Constraint("Equal", 1, 3),
    Sketcher.Constraint("Equal", 3, 5),
    Sketcher.Constraint("Equal", 5, 9),
    Sketcher.Constraint("Equal", 9, 11),
    Sketcher.Constraint("Equal", 7, 13),
    Sketcher.Constraint("Equal", 11, 15),
    Sketcher.Constraint("Equal", 15, 17),
    Sketcher.Constraint("Equal", 13, 19),
    Sketcher.Constraint("Equal", 17, 21),
    Sketcher.Constraint("Equal", 21, 23),
    Sketcher.Constraint("Equal", 19, 25),
    Sketcher.Constraint("Equal", 23, 27),
    Sketcher.Constraint("Equal", 27, 29),
    Sketcher.Constraint("Equal", 29, 31),
    Sketcher.Constraint("Equal", 31, 33),
    Sketcher.Constraint("Equal", 25, 35),
    Sketcher.Constraint("Equal", 33, 37),
    Sketcher.Constraint("Equal", 37, 39),
    Sketcher.Constraint("Equal", 35, 41),
    Sketcher.Constraint("Equal", 39, 43),
    Sketcher.Constraint("Equal", 43, 45),
    Sketcher.Constraint("Equal", 41, 47),
    Sketcher.Constraint("Equal", 45, 49),
    Sketcher.Constraint("Equal", 49, 51),
    Sketcher.Constraint("Equal", 47, 53),
    Sketcher.Constraint("Equal", 51, 55),
    Sketcher.Constraint("Equal", 55, 57),
    Sketcher.Constraint("Equal", 53, 59),
    Sketcher.Constraint("Equal", 57, 61),
    Sketcher.Constraint("Horizontal", 5, 3, 9, 3),
    Sketcher.Constraint("Horizontal", 7, 3, 13, 3),
    Sketcher.Constraint("Horizontal", 11, 3, 15, 3),
    Sketcher.Constraint("Horizontal", 13, 3, 19, 3),
    Sketcher.Constraint("Horizontal", 17, 3, 21, 3),
    Sketcher.Constraint("Horizontal", 19, 3, 25, 3),
    Sketcher.Constraint("Horizontal", 23, 3, 27, 3),
    Sketcher.Constraint("Horizontal", 1, 3, 31, 3),
    Sketcher.Constraint("Horizontal", 33, 3, 37, 3),
    Sketcher.Constraint("Horizontal", 35, 3, 41, 3),
    Sketcher.Constraint("Horizontal", 39, 3, 43, 3),
    Sketcher.Constraint("Horizontal", 41, 3, 47, 3),
    Sketcher.Constraint("Horizontal", 45, 3, 49, 3),
    Sketcher.Constraint("Horizontal", 47, 3, 53, 3),
    Sketcher.Constraint("Horizontal", 51, 3, 55, 3),
    Sketcher.Constraint("Horizontal", 53, 3, 59, 3),
    Sketcher.Constraint("Equal", 4, 28),
    Sketcher.Constraint("Equal", 22, 38),
    Sketcher.Constraint("Equal", 38, 44),
    Sketcher.Constraint("Equal", 44, 50),
    Sketcher.Constraint("Equal", 50, 56),
    Sketcher.Constraint("Radius", 1, Q("6 mm")),
    Sketcher.Constraint("Radius", 7, Q("2.5 mm")),
    Sketcher.Constraint("DistanceX", 16, 1, 16, 2, Q("284.2 mm")),
    Sketcher.Constraint("DistanceX", 0, 2, 0, 1, Q("134.88 mm")),
    Sketcher.Constraint("DistanceX", 4, 1, 4, 2, Q("275.44 mm")),
    Sketcher.Constraint("DistanceX", 10, 1, 10, 2, Q("264.12 mm")),
    Sketcher.Constraint("DistanceX", 22, 1, 22, 2, Q("274.16 mm")),
    Sketcher.Constraint("DistanceY", 2, 1, 2, 2, Q("301.36 mm")),
    Sketcher.Constraint("DistanceY", 34, 1, 34, 2, Q("202.91 mm")),
    Sketcher.Constraint("DistanceX", -1, 1, 57, 3, Q("181.2 mm")),
    Sketcher.Constraint("DistanceY", 1, 3, -1, 1, Q("330.68 mm")),
    Sketcher.Constraint("DistanceY", 6, 2, 6, 1, Q("207.094562 mm")),
])
pocket4 = body.newObject("PartDesign::Pocket", "Pocket003")
pocket4.Profile = sketch5
pocket4.Length = 12.7
pocket4.Reversed = True

# Sketch on YZ plane
sketch6 = body.newObject("Sketcher::SketchObject", "Sketch005")
sketch6.AttachmentSupport = (doc.getObject("YZ_Plane"), [""])
sketch6.MapMode = "FlatFace"
sketch6.AttachmentOffset = App.Placement(App.Vector(0, 0, 16), App.Rotation())
add_polygon(sketch6, [(42, -17.53), (42, 0), (37.26, 0), (37.46, -6.92), (37.78, -6.92), (37.78, -15)])  # lines 0-5
sketch6.addGeometry(Part.LineSegment(App.Vector(42, 0, 0), App.Vector(42, -17.53, 0)), True)  # axis
sketch6.addConstraint([
    Sketcher.Constraint("Vertical", 0),
    Sketcher.Constraint("Horizontal", 1),
    Sketcher.Constraint("Horizontal", 3),
    Sketcher.Constraint("Vertical", 4),
    Sketcher.Constraint("Vertical", 6),
    Sketcher.Constraint("Coincident", 6, 1, 0, 2),
    Sketcher.Constraint("PointOnObject", 0, 2, -1),
    Sketcher.Constraint("Equal", 0, 6),
    Sketcher.Constraint("Angle", 5, Q("-31 deg")),
    Sketcher.Constraint("DistanceX", -1, 1, 0, 2, Q("42 mm")),
    Sketcher.Constraint("DistanceY", 4, 2, -1, 1, Q("15 mm")),
    Sketcher.Constraint("DistanceY", 4, 2, 4, 1, Q("8.08 mm")),
    Sketcher.Constraint("DistanceX", 3, 1, 3, 2, Q("0.320999 mm")),
    Sketcher.Constraint("Distance", 2, Q("6.923101 mm")),
    Sketcher.Constraint("DistanceY", 0, 1, 0, 2, Q("17.533469 mm")),
])
groove = body.newObject("PartDesign::Groove", "Groove")
groove.Profile = sketch6
groove.ReferenceAxis = (sketch6, ["Axis0"])
groove.Angle = 360

# Sketch on YZ plane
sketch7 = body.newObject("Sketcher::SketchObject", "Sketch006")
sketch7.AttachmentSupport = (doc.getObject("YZ_Plane"), [""])
sketch7.MapMode = "FlatFace"
sketch7.AttachmentOffset = App.Placement(App.Vector(0, 0, 1484), App.Rotation())
add_polygon(sketch7, [(42, -342.47), (42, -360), (46.74, -360), (46.54, -353.08), (46.22, -353.08), (46.22, -345)])  # lines 0-5
sketch7.addGeometry(Part.LineSegment(App.Vector(42, -360, 0), App.Vector(42, -342.47, 0)), True)  # axis
sketch7.addConstraint([
    Sketcher.Constraint("Vertical", 0),
    Sketcher.Constraint("Horizontal", 1),
    Sketcher.Constraint("Horizontal", 3),
    Sketcher.Constraint("Vertical", 4),
    Sketcher.Constraint("Vertical", 6),
    Sketcher.Constraint("Coincident", 6, 1, 0, 2),
    Sketcher.Constraint("Equal", 0, 6),
    Sketcher.Constraint("Angle", 5, Q("149 deg")),
    Sketcher.Constraint("DistanceX", -1, 1, 0, 2, Q("42 mm")),
    Sketcher.Constraint("DistanceY", 0, 2, -1, 1, Q("360 mm")),
    Sketcher.Constraint("DistanceY", 4, 2, -1, 1, Q("345 mm")),
    Sketcher.Constraint("DistanceY", 4, 1, 4, 2, Q("8.08 mm")),
    Sketcher.Constraint("DistanceX", 3, 2, 3, 1, Q("0.320999 mm")),
    Sketcher.Constraint("Distance", 2, Q("6.923101 mm")),
    Sketcher.Constraint("DistanceY", 0, 2, 0, 1, Q("17.533469 mm")),
])
groove2 = body.newObject("PartDesign::Groove", "Groove001")
groove2.Profile = sketch7
groove2.ReferenceAxis = (sketch7, ["Axis0"])
groove2.Angle = 360

# Sketch on YZ plane
sketch8 = body.newObject("Sketcher::SketchObject", "Sketch007")
sketch8.AttachmentSupport = (doc.getObject("YZ_Plane"), [""])
sketch8.MapMode = "FlatFace"
sketch8.AttachmentOffset = App.Placement(App.Vector(0, 0, 1484), App.Rotation())
add_polygon(sketch8, [(42, -17.53), (42, 0), (37.26, 0), (37.46, -6.92), (37.78, -6.92), (37.78, -15)])  # lines 0-5
sketch8.addGeometry(Part.LineSegment(App.Vector(42, 0, 0), App.Vector(42, -17.53, 0)), True)  # axis
sketch8.addConstraint([
    Sketcher.Constraint("Vertical", 0),
    Sketcher.Constraint("Horizontal", 1),
    Sketcher.Constraint("Horizontal", 3),
    Sketcher.Constraint("Vertical", 4),
    Sketcher.Constraint("Vertical", 6),
    Sketcher.Constraint("Coincident", 6, 1, 0, 2),
    Sketcher.Constraint("PointOnObject", 0, 2, -1),
    Sketcher.Constraint("Equal", 0, 6),
    Sketcher.Constraint("Angle", 5, Q("-31 deg")),
    Sketcher.Constraint("DistanceX", -1, 1, 0, 2, Q("42 mm")),
    Sketcher.Constraint("DistanceY", 4, 2, -1, 1, Q("15 mm")),
    Sketcher.Constraint("DistanceY", 4, 2, 4, 1, Q("8.08 mm")),
    Sketcher.Constraint("DistanceX", 3, 1, 3, 2, Q("0.320999 mm")),
    Sketcher.Constraint("Distance", 2, Q("6.923101 mm")),
    Sketcher.Constraint("DistanceY", 0, 1, 0, 2, Q("17.533469 mm")),
])
groove3 = body.newObject("PartDesign::Groove", "Groove002")
groove3.Profile = sketch8
groove3.ReferenceAxis = (sketch8, ["Axis0"])
groove3.Angle = 360

# Sketch on YZ plane
sketch9 = body.newObject("Sketcher::SketchObject", "Sketch008")
sketch9.AttachmentSupport = (doc.getObject("YZ_Plane"), [""])
sketch9.MapMode = "FlatFace"
sketch9.AttachmentOffset = App.Placement(App.Vector(0, 0, 16), App.Rotation())
add_polygon(sketch9, [(42, -342.47), (42, -360), (46.74, -360), (46.54, -353.08), (46.22, -353.08), (46.22, -345)])  # lines 0-5
sketch9.addGeometry(Part.LineSegment(App.Vector(42, -360, 0), App.Vector(42, -342.47, 0)), True)  # axis
sketch9.addConstraint([
    Sketcher.Constraint("Vertical", 0),
    Sketcher.Constraint("Horizontal", 1),
    Sketcher.Constraint("Horizontal", 3),
    Sketcher.Constraint("Vertical", 4),
    Sketcher.Constraint("Vertical", 6),
    Sketcher.Constraint("Coincident", 6, 1, 0, 2),
    Sketcher.Constraint("Equal", 0, 6),
    Sketcher.Constraint("Angle", 5, Q("149 deg")),
    Sketcher.Constraint("DistanceX", -1, 1, 0, 2, Q("42 mm")),
    Sketcher.Constraint("DistanceY", 0, 2, -1, 1, Q("360 mm")),
    Sketcher.Constraint("DistanceY", 4, 2, -1, 1, Q("345 mm")),
    Sketcher.Constraint("DistanceY", 4, 1, 4, 2, Q("8.08 mm")),
    Sketcher.Constraint("DistanceX", 3, 2, 3, 1, Q("0.320999 mm")),
    Sketcher.Constraint("Distance", 2, Q("6.923101 mm")),
    Sketcher.Constraint("DistanceY", 0, 2, 0, 1, Q("17.533469 mm")),
])
groove4 = body.newObject("PartDesign::Groove", "Groove003")
groove4.Profile = sketch9
groove4.ReferenceAxis = (sketch9, ["Axis0"])
groove4.Angle = 360

# Sketch on YZ plane
sketch10 = body.newObject("Sketcher::SketchObject", "Sketch009")
sketch10.AttachmentSupport = (doc.getObject("YZ_Plane"), [""])
sketch10.MapMode = "FlatFace"
sketch10.AttachmentOffset = App.Placement(App.Vector(0, 0, 550), App.Rotation())
add_polygon(sketch10, [(38.1, -37.53), (38.1, 0), (33.36, 0), (33.56, -6.92), (33.88, -6.92), (33.88, -35)])  # lines 0-5
sketch10.addGeometry(Part.LineSegment(App.Vector(38.1, 0, 0), App.Vector(38.1, -37.53, 0)), True)  # axis
sketch10.addConstraint([
    Sketcher.Constraint("Vertical", 0),
    Sketcher.Constraint("Horizontal", 1),
    Sketcher.Constraint("Horizontal", 3),
    Sketcher.Constraint("Vertical", 4),
    Sketcher.Constraint("Vertical", 6),
    Sketcher.Constraint("Coincident", 6, 1, 0, 2),
    Sketcher.Constraint("PointOnObject", 0, 2, -1),
    Sketcher.Constraint("Equal", 0, 6),
    Sketcher.Constraint("Angle", 5, Q("-31 deg")),
    Sketcher.Constraint("DistanceY", 4, 2, -1, 1, Q("35 mm")),
    Sketcher.Constraint("DistanceY", 4, 2, 4, 1, Q("28.08 mm")),
    Sketcher.Constraint("DistanceX", -1, 1, 0, 2, Q("38.1 mm")),
    Sketcher.Constraint("DistanceX", 3, 1, 3, 2, Q("0.320999 mm")),
    Sketcher.Constraint("Distance", 2, Q("6.923101 mm")),
    Sketcher.Constraint("DistanceY", 0, 1, 0, 2, Q("37.533469 mm")),
])
groove5 = body.newObject("PartDesign::Groove", "Groove004")
groove5.Profile = sketch10
groove5.ReferenceAxis = (sketch10, ["Axis0"])
groove5.Angle = 360

# Sketch on YZ plane
sketch11 = body.newObject("Sketcher::SketchObject", "Sketch010")
sketch11.AttachmentSupport = (doc.getObject("YZ_Plane"), [""])
sketch11.MapMode = "FlatFace"
sketch11.AttachmentOffset = App.Placement(App.Vector(0, 0, 950), App.Rotation())
add_polygon(sketch11, [(38.1, -37.53), (38.1, 0), (33.36, 0), (33.56, -6.92), (33.88, -6.92), (33.88, -35)])  # lines 0-5
sketch11.addGeometry(Part.LineSegment(App.Vector(38.1, 0, 0), App.Vector(38.1, -37.53, 0)), True)  # axis
sketch11.addConstraint([
    Sketcher.Constraint("Vertical", 0),
    Sketcher.Constraint("Horizontal", 1),
    Sketcher.Constraint("Horizontal", 3),
    Sketcher.Constraint("Vertical", 4),
    Sketcher.Constraint("Vertical", 6),
    Sketcher.Constraint("Coincident", 6, 1, 0, 2),
    Sketcher.Constraint("PointOnObject", 0, 2, -1),
    Sketcher.Constraint("Equal", 0, 6),
    Sketcher.Constraint("Angle", 5, Q("-31 deg")),
    Sketcher.Constraint("DistanceY", 4, 2, -1, 1, Q("35 mm")),
    Sketcher.Constraint("DistanceY", 4, 2, 4, 1, Q("28.08 mm")),
    Sketcher.Constraint("DistanceX", -1, 1, 0, 2, Q("38.1 mm")),
    Sketcher.Constraint("DistanceX", 3, 1, 3, 2, Q("0.320999 mm")),
    Sketcher.Constraint("Distance", 2, Q("6.923101 mm")),
    Sketcher.Constraint("DistanceY", 0, 1, 0, 2, Q("37.533469 mm")),
])
groove6 = body.newObject("PartDesign::Groove", "Groove005")
groove6.Profile = sketch11
groove6.ReferenceAxis = (sketch11, ["Axis0"])
groove6.Angle = 360

# Sketch on YZ plane
sketch12 = body.newObject("Sketcher::SketchObject", "Sketch011")
sketch12.AttachmentSupport = (doc.getObject("YZ_Plane"), [""])
sketch12.MapMode = "FlatFace"
sketch12.AttachmentOffset = App.Placement(App.Vector(0, 0, 1300), App.Rotation())
add_polygon(sketch12, [(38.1, -322.47), (38.1, -360), (42.84, -360), (42.64, -353.08), (42.32, -353.08), (42.32, -325)])  # lines 0-5
sketch12.addGeometry(Part.LineSegment(App.Vector(38.1, -360, 0), App.Vector(38.1, -322.47, 0)), True)  # axis
sketch12.addConstraint([
    Sketcher.Constraint("Vertical", 0),
    Sketcher.Constraint("Horizontal", 1),
    Sketcher.Constraint("Horizontal", 3),
    Sketcher.Constraint("Vertical", 4),
    Sketcher.Constraint("Vertical", 6),
    Sketcher.Constraint("Coincident", 6, 1, 0, 2),
    Sketcher.Constraint("Equal", 0, 6),
    Sketcher.Constraint("Angle", 5, Q("149 deg")),
    Sketcher.Constraint("DistanceY", 0, 2, -1, 1, Q("360 mm")),
    Sketcher.Constraint("DistanceY", 4, 2, -1, 1, Q("325 mm")),
    Sketcher.Constraint("DistanceY", 4, 1, 4, 2, Q("28.08 mm")),
    Sketcher.Constraint("DistanceX", -1, 1, 0, 2, Q("38.1 mm")),
    Sketcher.Constraint("DistanceX", 3, 2, 3, 1, Q("0.320999 mm")),
    Sketcher.Constraint("Distance", 2, Q("6.923101 mm")),
    Sketcher.Constraint("DistanceY", 0, 2, 0, 1, Q("37.533469 mm")),
])
groove7 = body.newObject("PartDesign::Groove", "Groove006")
groove7.Profile = sketch12
groove7.ReferenceAxis = (sketch12, ["Axis0"])
groove7.Angle = 360

# Sketch on YZ plane
sketch13 = body.newObject("Sketcher::SketchObject", "Sketch012")
sketch13.AttachmentSupport = (doc.getObject("YZ_Plane"), [""])
sketch13.MapMode = "FlatFace"
sketch13.AttachmentOffset = App.Placement(App.Vector(0, 0, 200), App.Rotation())
add_polygon(sketch13, [(38.1, -322.47), (38.1, -360), (42.84, -360), (42.64, -353.08), (42.32, -353.08), (42.32, -325)])  # lines 0-5
sketch13.addGeometry(Part.LineSegment(App.Vector(38.1, -360, 0), App.Vector(38.1, -322.47, 0)), True)  # axis
sketch13.addConstraint([
    Sketcher.Constraint("Vertical", 0),
    Sketcher.Constraint("Horizontal", 1),
    Sketcher.Constraint("Horizontal", 3),
    Sketcher.Constraint("Vertical", 4),
    Sketcher.Constraint("Vertical", 6),
    Sketcher.Constraint("Coincident", 6, 1, 0, 2),
    Sketcher.Constraint("Equal", 0, 6),
    Sketcher.Constraint("Angle", 5, Q("149 deg")),
    Sketcher.Constraint("DistanceY", 0, 2, -1, 1, Q("360 mm")),
    Sketcher.Constraint("DistanceY", 4, 2, -1, 1, Q("325 mm")),
    Sketcher.Constraint("DistanceY", 4, 1, 4, 2, Q("28.08 mm")),
    Sketcher.Constraint("DistanceX", -1, 1, 0, 2, Q("38.1 mm")),
    Sketcher.Constraint("DistanceX", 3, 2, 3, 1, Q("0.320999 mm")),
    Sketcher.Constraint("Distance", 2, Q("6.923101 mm")),
    Sketcher.Constraint("DistanceY", 0, 2, 0, 1, Q("37.533469 mm")),
])
groove8 = body.newObject("PartDesign::Groove", "Groove007")
groove8.Profile = sketch13
groove8.ReferenceAxis = (sketch13, ["Axis0"])
groove8.Angle = 360

# Sketch on YZ plane
sketch14 = body.newObject("Sketcher::SketchObject", "Sketch013")
sketch14.AttachmentSupport = (doc.getObject("YZ_Plane"), [""])
sketch14.MapMode = "FlatFace"
sketch14.AttachmentOffset = App.Placement(App.Vector(0, 0, 27.12), App.Rotation())
add_polygon(sketch14, [(0, -27.8), (38.1, -27.8), (38.1, -25.4), (8.1, -25.4), (7.1, -27), (0, -27)])  # lines 0-5
sketch14.addGeometry(Part.LineSegment(App.Vector(38.1, -27.8, 0), App.Vector(0, -27.8, 0)), True)  # axis
sketch14.addConstraint([
    Sketcher.Constraint("Horizontal", 0),
    Sketcher.Constraint("Vertical", 1),
    Sketcher.Constraint("Horizontal", 2),
    Sketcher.Constraint("Horizontal", 4),
    Sketcher.Constraint("Vertical", 5),
    Sketcher.Constraint("Horizontal", 6),
    Sketcher.Constraint("Coincident", 6, 1, 0, 2),
    Sketcher.Constraint("PointOnObject", 4, 2, -2),
    Sketcher.Constraint("PointOnObject", 6, 2, -2),
    Sketcher.Constraint("DistanceX", 2, 2, 2, 1, Q("30 mm")),
    Sketcher.Constraint("Angle", 3, Q("-121 deg")),
    Sketcher.Constraint("DistanceX", 0, 1, 0, 2, Q("38.1 mm")),
    Sketcher.Constraint("DistanceY", 1, 1, 1, 2, Q("2.38 mm")),
    Sketcher.Constraint("DistanceY", 5, 2, 5, 1, Q("0.795 mm")),
    Sketcher.Constraint("DistanceY", 0, 2, -1, 1, Q("27.75 mm")),
])
groove9 = body.newObject("PartDesign::Groove", "Groove008")
groove9.Profile = sketch14
groove9.ReferenceAxis = (sketch14, ["Axis0"])
groove9.Angle = 360

doc.recompute()
